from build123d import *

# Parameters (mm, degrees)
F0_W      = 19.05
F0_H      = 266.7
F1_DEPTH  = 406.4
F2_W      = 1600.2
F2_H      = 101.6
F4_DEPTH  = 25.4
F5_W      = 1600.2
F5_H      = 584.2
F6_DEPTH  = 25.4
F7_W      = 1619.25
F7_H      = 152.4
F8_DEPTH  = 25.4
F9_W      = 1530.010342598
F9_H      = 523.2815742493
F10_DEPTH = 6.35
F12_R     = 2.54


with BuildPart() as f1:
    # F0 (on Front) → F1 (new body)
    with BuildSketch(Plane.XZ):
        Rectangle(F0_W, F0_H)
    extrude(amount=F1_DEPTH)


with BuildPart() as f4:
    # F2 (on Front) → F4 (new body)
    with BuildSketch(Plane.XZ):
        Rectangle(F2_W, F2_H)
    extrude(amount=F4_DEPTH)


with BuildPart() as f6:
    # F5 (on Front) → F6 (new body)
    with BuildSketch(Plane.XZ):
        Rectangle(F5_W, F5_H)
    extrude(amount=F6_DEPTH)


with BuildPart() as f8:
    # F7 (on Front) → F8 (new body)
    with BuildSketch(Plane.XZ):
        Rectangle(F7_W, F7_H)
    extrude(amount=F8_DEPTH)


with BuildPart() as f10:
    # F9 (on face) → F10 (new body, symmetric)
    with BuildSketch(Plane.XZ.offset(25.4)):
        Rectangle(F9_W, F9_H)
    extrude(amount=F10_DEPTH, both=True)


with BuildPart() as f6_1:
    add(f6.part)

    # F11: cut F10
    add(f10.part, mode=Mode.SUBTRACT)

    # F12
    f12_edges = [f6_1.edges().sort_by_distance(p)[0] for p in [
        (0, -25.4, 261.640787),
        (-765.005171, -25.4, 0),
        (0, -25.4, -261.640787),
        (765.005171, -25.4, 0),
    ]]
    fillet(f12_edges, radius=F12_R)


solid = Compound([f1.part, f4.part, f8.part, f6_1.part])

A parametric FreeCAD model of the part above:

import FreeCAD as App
import Part
import Sketcher
from FreeCAD import Vector
Q = App.Units.Quantity


def edges_at(feature, points):
    """Names of the edges that pass closest to the given points."""
    edges = feature.Shape.Edges
    near = lambda p: min(range(len(edges)), key=lambda i: edges[i].distToShape(Part.Vertex(*p))[0])
    return sorted({f"Edge{near(p) + 1}" for p in points})

doc = App.newDocument("Part")
body = doc.addObject("PartDesign::Body", "Body")

# Sketch on XZ plane
sketch1 = body.newObject("Sketcher::SketchObject", "Sketch")
sketch1.AttachmentSupport = (doc.getObject("XZ_Plane"), [""])
sketch1.MapMode = "FlatFace"
sketch1.addGeometry(Part.LineSegment(Vector(-10, 133, 0), Vector(-10, -133, 0)), False)
sketch1.addGeometry(Part.LineSegment(Vector(-10, -133, 0), Vector(10, -133, 0)), False)
sketch1.addGeometry(Part.LineSegment(Vector(10, -133, 0), Vector(10, 133, 0)), False)
sketch1.addGeometry(Part.LineSegment(Vector(10, 133, 0), Vector(-10, 133, 0)), False)
sketch1.addConstraint(Sketcher.Constraint("Coincident", 0, 2, 1, 1))
sketch1.addConstraint(Sketcher.Constraint("Coincident", 1, 2, 2, 1))
sketch1.addConstraint(Sketcher.Constraint("Coincident", 2, 2, 3, 1))
sketch1.addConstraint(Sketcher.Constraint("Coincident", 3, 2, 0, 1))
sketch1.addConstraint(Sketcher.Constraint("Vertical", 0))
sketch1.addConstraint(Sketcher.Constraint("Horizontal", 1))
sketch1.addConstraint(Sketcher.Constraint("Vertical", 2))
sketch1.addConstraint(Sketcher.Constraint("Horizontal", 3))
sketch1.addConstraint(Sketcher.Constraint("Symmetric", 0, 2, 2, 2, -1, 1))
sketch1.addConstraint(Sketcher.Constraint("DistanceY", 0, 2, 0, 1, Q("10.5 in")))
sketch1.addConstraint(Sketcher.Constraint("DistanceX", 1, 1, 1, 2, Q("0.75 in")))
pad1 = body.newObject("PartDesign::Pad", "Pad")
pad1.Profile = sketch1
pad1.Length = Q("16 in")
body2 = doc.addObject("PartDesign::Body", "Body001")

# Sketch on XZ plane
sketch2 = body2.newObject("Sketcher::SketchObject", "Sketch001")
sketch2.AttachmentSupport = (doc.getObject("XZ_Plane001"), [""])
sketch2.MapMode = "FlatFace"
sketch2.addGeometry(Part.LineSegment(Vector(-800, 51, 0), Vector(-800, -51, 0)), False)
sketch2.addGeometry(Part.LineSegment(Vector(-800, -51, 0), Vector(800, -51, 0)), False)
sketch2.addGeometry(Part.LineSegment(Vector(800, -51, 0), Vector(800, 51, 0)), False)
sketch2.addGeometry(Part.LineSegment(Vector(800, 51, 0), Vector(-800, 51, 0)), False)
sketch2.addConstraint(Sketcher.Constraint("Coincident", 0, 2, 1, 1))
sketch2.addConstraint(Sketcher.Constraint("Coincident", 1, 2, 2, 1))
sketch2.addConstraint(Sketcher.Constraint("Coincident", 2, 2, 3, 1))
sketch2.addConstraint(Sketcher.Constraint("Coincident", 3, 2, 0, 1))
sketch2.addConstraint(Sketcher.Constraint("Vertical", 0))
sketch2.addConstraint(Sketcher.Constraint("Horizontal", 1))
sketch2.addConstraint(Sketcher.Constraint("Vertical", 2))
sketch2.addConstraint(Sketcher.Constraint("Horizontal", 3))
sketch2.addConstraint(Sketcher.Constraint("Symmetric", 0, 2, 2, 2, -1, 1))
sketch2.addConstraint(Sketcher.Constraint("DistanceX", 1, 1, 1, 2, Q("63 in")))
sketch2.addConstraint(Sketcher.Constraint("DistanceY", 0, 2, 0, 1, Q("4 in")))
pad2 = body2.newObject("PartDesign::Pad", "Pad001")
pad2.Profile = sketch2
pad2.Length = Q("1 in")
body3 = doc.addObject("PartDesign::Body", "Body002")

# Sketch on XZ plane
sketch3 = body3.newObject("Sketcher::SketchObject", "Sketch002")
sketch3.AttachmentSupport = (doc.getObject("XZ_Plane002"), [""])
sketch3.MapMode = "FlatFace"
sketch3.addGeometry(Part.LineSegment(Vector(-800, 292, 0), Vector(-800, -292, 0)), False)
sketch3.addGeometry(Part.LineSegment(Vector(-800, -292, 0), Vector(800, -292, 0)), False)
sketch3.addGeometry(Part.LineSegment(Vector(800, -292, 0), Vector(800, 292, 0)), False)
sketch3.addGeometry(Part.LineSegment(Vector(800, 292, 0), Vector(-800, 292, 0)), False)
sketch3.addConstraint(Sketcher.Constraint("Coincident", 0, 2, 1, 1))
sketch3.addConstraint(Sketcher.Constraint("Coincident", 1, 2, 2, 1))
sketch3.addConstraint(Sketcher.Constraint("Coincident", 2, 2, 3, 1))
sketch3.addConstraint(Sketcher.Constraint("Coincident", 3, 2, 0, 1))
sketch3.addConstraint(Sketcher.Constraint("Vertical", 0))
sketch3.addConstraint(Sketcher.Constraint("Horizontal", 1))
sketch3.addConstraint(Sketcher.Constraint("Vertical", 2))
sketch3.addConstraint(Sketcher.Constraint("Horizontal", 3))
sketch3.addConstraint(Sketcher.Constraint("Symmetric", 0, 2, 2, 2, -1, 1))
sketch3.addConstraint(Sketcher.Constraint("DistanceX", 1, 1, 1, 2, Q("63 in")))
sketch3.addConstraint(Sketcher.Constraint("DistanceY", 0, 2, 0, 1, Q("23 in")))
pad3 = body3.newObject("PartDesign::Pad", "Pad002")
pad3.Profile = sketch3
pad3.Length = Q("1 in")
body4 = doc.addObject("PartDesign::Body", "Body003")

# Sketch on XZ plane
sketch4 = body4.newObject("Sketcher::SketchObject", "Sketch003")
sketch4.AttachmentSupport = (doc.getObject("XZ_Plane003"), [""])
sketch4.MapMode = "FlatFace"
sketch4.addGeometry(Part.LineSegment(Vector(-810, 76, 0), Vector(-810, -76, 0)), False)
sketch4.addGeometry(Part.LineSegment(Vector(-810, -76, 0), Vector(810, -76, 0)), False)
sketch4.addGeometry(Part.LineSegment(Vector(810, -76, 0), Vector(810, 76, 0)), False)
sketch4.addGeometry(Part.LineSegment(Vector(810, 76, 0), Vector(-810, 76, 0)), False)
sketch4.addConstraint(Sketcher.Constraint("Coincident", 0, 2, 1, 1))
sketch4.addConstraint(Sketcher.Constraint("Coincident", 1, 2, 2, 1))
sketch4.addConstraint(Sketcher.Constraint("Coincident", 2, 2, 3, 1))
sketch4.addConstraint(Sketcher.Constraint("Coincident", 3, 2, 0, 1))
sketch4.addConstraint(Sketcher.Constraint("Vertical", 0))
sketch4.addConstraint(Sketcher.Constraint("Horizontal", 1))
sketch4.addConstraint(Sketcher.Constraint("Vertical", 2))
sketch4.addConstraint(Sketcher.Constraint("Horizontal", 3))
sketch4.addConstraint(Sketcher.Constraint("Symmetric", 0, 2, 2, 2, -1, 1))
sketch4.addConstraint(Sketcher.Constraint("DistanceY", 0, 2, 0, 1, Q("6 in")))
sketch4.addConstraint(Sketcher.Constraint("DistanceX", 1, 1, 1, 2, Q("63.75 in")))
pad4 = body4.newObject("PartDesign::Pad", "Pad003")
pad4.Profile = sketch4
pad4.Length = Q("1 in")
body5 = doc.addObject("PartDesign::Body", "Body004")

# Sketch on XZ plane
sketch5 = body5.newObject("Sketcher::SketchObject", "Sketch004")
sketch5.AttachmentSupport = (doc.getObject("XZ_Plane004"), [""])
sketch5.MapMode = "FlatFace"
sketch5.AttachmentOffset = App.Placement(Vector(0, 0, 1 * 25.4), App.Rotation())
sketch5.addGeometry(Part.LineSegment(Vector(-765, 262, 0), Vector(-765, -262, 0)), False)
sketch5.addGeometry(Part.LineSegment(Vector(-765, -262, 0), Vector(765, -262, 0)), False)
sketch5.addGeometry(Part.LineSegment(Vector(765, -262, 0), Vector(765, 262, 0)), False)
sketch5.addGeometry(Part.LineSegment(Vector(765, 262, 0), Vector(-765, 262, 0)), False)
sketch5.addConstraint(Sketcher.Constraint("Coincident", 0, 2, 1, 1))
sketch5.addConstraint(Sketcher.Constraint("Coincident", 1, 2, 2, 1))
sketch5.addConstraint(Sketcher.Constraint("Coincident", 2, 2, 3, 1))
sketch5.addConstraint(Sketcher.Constraint("Coincident", 3, 2, 0, 1))
sketch5.addConstraint(Sketcher.Constraint("Vertical", 0))
sketch5.addConstraint(Sketcher.Constraint("Horizontal", 1))
sketch5.addConstraint(Sketcher.Constraint("Vertical", 2))
sketch5.addConstraint(Sketcher.Constraint("Horizontal", 3))
sketch5.addConstraint(Sketcher.Constraint("Symmetric", 0, 2, 2, 2, -1, 1))
sketch5.addConstraint(Sketcher.Constraint("DistanceX", 1, 1, 1, 2, Q("1530.010343 mm")))
sketch5.addConstraint(Sketcher.Constraint("DistanceY", 0, 2, 0, 1, Q("523.281574 mm")))
pad5 = body5.newObject("PartDesign::Pad", "Pad004")
pad5.Profile = sketch5
pad5.Length = Q("0.5 in")
pad5.Midplane = True
doc.recompute()

boolean = body3.newObject("PartDesign::Boolean", "Boolean")
boolean.Type = "Cut"
boolean.addObjects([body5])
doc.recompute()

fillet = body3.newObject("PartDesign::Fillet", "Fillet")
fillet.Base = (boolean, edges_at(boolean, [
    (0, -25.4, 261.641),
    (-765.005, -25.4, 0),
    (0, -25.4, -261.641),
    (765.005, -25.4, 0),
]))
fillet.Radius = Q("0.1 in")

doc.recompute()
